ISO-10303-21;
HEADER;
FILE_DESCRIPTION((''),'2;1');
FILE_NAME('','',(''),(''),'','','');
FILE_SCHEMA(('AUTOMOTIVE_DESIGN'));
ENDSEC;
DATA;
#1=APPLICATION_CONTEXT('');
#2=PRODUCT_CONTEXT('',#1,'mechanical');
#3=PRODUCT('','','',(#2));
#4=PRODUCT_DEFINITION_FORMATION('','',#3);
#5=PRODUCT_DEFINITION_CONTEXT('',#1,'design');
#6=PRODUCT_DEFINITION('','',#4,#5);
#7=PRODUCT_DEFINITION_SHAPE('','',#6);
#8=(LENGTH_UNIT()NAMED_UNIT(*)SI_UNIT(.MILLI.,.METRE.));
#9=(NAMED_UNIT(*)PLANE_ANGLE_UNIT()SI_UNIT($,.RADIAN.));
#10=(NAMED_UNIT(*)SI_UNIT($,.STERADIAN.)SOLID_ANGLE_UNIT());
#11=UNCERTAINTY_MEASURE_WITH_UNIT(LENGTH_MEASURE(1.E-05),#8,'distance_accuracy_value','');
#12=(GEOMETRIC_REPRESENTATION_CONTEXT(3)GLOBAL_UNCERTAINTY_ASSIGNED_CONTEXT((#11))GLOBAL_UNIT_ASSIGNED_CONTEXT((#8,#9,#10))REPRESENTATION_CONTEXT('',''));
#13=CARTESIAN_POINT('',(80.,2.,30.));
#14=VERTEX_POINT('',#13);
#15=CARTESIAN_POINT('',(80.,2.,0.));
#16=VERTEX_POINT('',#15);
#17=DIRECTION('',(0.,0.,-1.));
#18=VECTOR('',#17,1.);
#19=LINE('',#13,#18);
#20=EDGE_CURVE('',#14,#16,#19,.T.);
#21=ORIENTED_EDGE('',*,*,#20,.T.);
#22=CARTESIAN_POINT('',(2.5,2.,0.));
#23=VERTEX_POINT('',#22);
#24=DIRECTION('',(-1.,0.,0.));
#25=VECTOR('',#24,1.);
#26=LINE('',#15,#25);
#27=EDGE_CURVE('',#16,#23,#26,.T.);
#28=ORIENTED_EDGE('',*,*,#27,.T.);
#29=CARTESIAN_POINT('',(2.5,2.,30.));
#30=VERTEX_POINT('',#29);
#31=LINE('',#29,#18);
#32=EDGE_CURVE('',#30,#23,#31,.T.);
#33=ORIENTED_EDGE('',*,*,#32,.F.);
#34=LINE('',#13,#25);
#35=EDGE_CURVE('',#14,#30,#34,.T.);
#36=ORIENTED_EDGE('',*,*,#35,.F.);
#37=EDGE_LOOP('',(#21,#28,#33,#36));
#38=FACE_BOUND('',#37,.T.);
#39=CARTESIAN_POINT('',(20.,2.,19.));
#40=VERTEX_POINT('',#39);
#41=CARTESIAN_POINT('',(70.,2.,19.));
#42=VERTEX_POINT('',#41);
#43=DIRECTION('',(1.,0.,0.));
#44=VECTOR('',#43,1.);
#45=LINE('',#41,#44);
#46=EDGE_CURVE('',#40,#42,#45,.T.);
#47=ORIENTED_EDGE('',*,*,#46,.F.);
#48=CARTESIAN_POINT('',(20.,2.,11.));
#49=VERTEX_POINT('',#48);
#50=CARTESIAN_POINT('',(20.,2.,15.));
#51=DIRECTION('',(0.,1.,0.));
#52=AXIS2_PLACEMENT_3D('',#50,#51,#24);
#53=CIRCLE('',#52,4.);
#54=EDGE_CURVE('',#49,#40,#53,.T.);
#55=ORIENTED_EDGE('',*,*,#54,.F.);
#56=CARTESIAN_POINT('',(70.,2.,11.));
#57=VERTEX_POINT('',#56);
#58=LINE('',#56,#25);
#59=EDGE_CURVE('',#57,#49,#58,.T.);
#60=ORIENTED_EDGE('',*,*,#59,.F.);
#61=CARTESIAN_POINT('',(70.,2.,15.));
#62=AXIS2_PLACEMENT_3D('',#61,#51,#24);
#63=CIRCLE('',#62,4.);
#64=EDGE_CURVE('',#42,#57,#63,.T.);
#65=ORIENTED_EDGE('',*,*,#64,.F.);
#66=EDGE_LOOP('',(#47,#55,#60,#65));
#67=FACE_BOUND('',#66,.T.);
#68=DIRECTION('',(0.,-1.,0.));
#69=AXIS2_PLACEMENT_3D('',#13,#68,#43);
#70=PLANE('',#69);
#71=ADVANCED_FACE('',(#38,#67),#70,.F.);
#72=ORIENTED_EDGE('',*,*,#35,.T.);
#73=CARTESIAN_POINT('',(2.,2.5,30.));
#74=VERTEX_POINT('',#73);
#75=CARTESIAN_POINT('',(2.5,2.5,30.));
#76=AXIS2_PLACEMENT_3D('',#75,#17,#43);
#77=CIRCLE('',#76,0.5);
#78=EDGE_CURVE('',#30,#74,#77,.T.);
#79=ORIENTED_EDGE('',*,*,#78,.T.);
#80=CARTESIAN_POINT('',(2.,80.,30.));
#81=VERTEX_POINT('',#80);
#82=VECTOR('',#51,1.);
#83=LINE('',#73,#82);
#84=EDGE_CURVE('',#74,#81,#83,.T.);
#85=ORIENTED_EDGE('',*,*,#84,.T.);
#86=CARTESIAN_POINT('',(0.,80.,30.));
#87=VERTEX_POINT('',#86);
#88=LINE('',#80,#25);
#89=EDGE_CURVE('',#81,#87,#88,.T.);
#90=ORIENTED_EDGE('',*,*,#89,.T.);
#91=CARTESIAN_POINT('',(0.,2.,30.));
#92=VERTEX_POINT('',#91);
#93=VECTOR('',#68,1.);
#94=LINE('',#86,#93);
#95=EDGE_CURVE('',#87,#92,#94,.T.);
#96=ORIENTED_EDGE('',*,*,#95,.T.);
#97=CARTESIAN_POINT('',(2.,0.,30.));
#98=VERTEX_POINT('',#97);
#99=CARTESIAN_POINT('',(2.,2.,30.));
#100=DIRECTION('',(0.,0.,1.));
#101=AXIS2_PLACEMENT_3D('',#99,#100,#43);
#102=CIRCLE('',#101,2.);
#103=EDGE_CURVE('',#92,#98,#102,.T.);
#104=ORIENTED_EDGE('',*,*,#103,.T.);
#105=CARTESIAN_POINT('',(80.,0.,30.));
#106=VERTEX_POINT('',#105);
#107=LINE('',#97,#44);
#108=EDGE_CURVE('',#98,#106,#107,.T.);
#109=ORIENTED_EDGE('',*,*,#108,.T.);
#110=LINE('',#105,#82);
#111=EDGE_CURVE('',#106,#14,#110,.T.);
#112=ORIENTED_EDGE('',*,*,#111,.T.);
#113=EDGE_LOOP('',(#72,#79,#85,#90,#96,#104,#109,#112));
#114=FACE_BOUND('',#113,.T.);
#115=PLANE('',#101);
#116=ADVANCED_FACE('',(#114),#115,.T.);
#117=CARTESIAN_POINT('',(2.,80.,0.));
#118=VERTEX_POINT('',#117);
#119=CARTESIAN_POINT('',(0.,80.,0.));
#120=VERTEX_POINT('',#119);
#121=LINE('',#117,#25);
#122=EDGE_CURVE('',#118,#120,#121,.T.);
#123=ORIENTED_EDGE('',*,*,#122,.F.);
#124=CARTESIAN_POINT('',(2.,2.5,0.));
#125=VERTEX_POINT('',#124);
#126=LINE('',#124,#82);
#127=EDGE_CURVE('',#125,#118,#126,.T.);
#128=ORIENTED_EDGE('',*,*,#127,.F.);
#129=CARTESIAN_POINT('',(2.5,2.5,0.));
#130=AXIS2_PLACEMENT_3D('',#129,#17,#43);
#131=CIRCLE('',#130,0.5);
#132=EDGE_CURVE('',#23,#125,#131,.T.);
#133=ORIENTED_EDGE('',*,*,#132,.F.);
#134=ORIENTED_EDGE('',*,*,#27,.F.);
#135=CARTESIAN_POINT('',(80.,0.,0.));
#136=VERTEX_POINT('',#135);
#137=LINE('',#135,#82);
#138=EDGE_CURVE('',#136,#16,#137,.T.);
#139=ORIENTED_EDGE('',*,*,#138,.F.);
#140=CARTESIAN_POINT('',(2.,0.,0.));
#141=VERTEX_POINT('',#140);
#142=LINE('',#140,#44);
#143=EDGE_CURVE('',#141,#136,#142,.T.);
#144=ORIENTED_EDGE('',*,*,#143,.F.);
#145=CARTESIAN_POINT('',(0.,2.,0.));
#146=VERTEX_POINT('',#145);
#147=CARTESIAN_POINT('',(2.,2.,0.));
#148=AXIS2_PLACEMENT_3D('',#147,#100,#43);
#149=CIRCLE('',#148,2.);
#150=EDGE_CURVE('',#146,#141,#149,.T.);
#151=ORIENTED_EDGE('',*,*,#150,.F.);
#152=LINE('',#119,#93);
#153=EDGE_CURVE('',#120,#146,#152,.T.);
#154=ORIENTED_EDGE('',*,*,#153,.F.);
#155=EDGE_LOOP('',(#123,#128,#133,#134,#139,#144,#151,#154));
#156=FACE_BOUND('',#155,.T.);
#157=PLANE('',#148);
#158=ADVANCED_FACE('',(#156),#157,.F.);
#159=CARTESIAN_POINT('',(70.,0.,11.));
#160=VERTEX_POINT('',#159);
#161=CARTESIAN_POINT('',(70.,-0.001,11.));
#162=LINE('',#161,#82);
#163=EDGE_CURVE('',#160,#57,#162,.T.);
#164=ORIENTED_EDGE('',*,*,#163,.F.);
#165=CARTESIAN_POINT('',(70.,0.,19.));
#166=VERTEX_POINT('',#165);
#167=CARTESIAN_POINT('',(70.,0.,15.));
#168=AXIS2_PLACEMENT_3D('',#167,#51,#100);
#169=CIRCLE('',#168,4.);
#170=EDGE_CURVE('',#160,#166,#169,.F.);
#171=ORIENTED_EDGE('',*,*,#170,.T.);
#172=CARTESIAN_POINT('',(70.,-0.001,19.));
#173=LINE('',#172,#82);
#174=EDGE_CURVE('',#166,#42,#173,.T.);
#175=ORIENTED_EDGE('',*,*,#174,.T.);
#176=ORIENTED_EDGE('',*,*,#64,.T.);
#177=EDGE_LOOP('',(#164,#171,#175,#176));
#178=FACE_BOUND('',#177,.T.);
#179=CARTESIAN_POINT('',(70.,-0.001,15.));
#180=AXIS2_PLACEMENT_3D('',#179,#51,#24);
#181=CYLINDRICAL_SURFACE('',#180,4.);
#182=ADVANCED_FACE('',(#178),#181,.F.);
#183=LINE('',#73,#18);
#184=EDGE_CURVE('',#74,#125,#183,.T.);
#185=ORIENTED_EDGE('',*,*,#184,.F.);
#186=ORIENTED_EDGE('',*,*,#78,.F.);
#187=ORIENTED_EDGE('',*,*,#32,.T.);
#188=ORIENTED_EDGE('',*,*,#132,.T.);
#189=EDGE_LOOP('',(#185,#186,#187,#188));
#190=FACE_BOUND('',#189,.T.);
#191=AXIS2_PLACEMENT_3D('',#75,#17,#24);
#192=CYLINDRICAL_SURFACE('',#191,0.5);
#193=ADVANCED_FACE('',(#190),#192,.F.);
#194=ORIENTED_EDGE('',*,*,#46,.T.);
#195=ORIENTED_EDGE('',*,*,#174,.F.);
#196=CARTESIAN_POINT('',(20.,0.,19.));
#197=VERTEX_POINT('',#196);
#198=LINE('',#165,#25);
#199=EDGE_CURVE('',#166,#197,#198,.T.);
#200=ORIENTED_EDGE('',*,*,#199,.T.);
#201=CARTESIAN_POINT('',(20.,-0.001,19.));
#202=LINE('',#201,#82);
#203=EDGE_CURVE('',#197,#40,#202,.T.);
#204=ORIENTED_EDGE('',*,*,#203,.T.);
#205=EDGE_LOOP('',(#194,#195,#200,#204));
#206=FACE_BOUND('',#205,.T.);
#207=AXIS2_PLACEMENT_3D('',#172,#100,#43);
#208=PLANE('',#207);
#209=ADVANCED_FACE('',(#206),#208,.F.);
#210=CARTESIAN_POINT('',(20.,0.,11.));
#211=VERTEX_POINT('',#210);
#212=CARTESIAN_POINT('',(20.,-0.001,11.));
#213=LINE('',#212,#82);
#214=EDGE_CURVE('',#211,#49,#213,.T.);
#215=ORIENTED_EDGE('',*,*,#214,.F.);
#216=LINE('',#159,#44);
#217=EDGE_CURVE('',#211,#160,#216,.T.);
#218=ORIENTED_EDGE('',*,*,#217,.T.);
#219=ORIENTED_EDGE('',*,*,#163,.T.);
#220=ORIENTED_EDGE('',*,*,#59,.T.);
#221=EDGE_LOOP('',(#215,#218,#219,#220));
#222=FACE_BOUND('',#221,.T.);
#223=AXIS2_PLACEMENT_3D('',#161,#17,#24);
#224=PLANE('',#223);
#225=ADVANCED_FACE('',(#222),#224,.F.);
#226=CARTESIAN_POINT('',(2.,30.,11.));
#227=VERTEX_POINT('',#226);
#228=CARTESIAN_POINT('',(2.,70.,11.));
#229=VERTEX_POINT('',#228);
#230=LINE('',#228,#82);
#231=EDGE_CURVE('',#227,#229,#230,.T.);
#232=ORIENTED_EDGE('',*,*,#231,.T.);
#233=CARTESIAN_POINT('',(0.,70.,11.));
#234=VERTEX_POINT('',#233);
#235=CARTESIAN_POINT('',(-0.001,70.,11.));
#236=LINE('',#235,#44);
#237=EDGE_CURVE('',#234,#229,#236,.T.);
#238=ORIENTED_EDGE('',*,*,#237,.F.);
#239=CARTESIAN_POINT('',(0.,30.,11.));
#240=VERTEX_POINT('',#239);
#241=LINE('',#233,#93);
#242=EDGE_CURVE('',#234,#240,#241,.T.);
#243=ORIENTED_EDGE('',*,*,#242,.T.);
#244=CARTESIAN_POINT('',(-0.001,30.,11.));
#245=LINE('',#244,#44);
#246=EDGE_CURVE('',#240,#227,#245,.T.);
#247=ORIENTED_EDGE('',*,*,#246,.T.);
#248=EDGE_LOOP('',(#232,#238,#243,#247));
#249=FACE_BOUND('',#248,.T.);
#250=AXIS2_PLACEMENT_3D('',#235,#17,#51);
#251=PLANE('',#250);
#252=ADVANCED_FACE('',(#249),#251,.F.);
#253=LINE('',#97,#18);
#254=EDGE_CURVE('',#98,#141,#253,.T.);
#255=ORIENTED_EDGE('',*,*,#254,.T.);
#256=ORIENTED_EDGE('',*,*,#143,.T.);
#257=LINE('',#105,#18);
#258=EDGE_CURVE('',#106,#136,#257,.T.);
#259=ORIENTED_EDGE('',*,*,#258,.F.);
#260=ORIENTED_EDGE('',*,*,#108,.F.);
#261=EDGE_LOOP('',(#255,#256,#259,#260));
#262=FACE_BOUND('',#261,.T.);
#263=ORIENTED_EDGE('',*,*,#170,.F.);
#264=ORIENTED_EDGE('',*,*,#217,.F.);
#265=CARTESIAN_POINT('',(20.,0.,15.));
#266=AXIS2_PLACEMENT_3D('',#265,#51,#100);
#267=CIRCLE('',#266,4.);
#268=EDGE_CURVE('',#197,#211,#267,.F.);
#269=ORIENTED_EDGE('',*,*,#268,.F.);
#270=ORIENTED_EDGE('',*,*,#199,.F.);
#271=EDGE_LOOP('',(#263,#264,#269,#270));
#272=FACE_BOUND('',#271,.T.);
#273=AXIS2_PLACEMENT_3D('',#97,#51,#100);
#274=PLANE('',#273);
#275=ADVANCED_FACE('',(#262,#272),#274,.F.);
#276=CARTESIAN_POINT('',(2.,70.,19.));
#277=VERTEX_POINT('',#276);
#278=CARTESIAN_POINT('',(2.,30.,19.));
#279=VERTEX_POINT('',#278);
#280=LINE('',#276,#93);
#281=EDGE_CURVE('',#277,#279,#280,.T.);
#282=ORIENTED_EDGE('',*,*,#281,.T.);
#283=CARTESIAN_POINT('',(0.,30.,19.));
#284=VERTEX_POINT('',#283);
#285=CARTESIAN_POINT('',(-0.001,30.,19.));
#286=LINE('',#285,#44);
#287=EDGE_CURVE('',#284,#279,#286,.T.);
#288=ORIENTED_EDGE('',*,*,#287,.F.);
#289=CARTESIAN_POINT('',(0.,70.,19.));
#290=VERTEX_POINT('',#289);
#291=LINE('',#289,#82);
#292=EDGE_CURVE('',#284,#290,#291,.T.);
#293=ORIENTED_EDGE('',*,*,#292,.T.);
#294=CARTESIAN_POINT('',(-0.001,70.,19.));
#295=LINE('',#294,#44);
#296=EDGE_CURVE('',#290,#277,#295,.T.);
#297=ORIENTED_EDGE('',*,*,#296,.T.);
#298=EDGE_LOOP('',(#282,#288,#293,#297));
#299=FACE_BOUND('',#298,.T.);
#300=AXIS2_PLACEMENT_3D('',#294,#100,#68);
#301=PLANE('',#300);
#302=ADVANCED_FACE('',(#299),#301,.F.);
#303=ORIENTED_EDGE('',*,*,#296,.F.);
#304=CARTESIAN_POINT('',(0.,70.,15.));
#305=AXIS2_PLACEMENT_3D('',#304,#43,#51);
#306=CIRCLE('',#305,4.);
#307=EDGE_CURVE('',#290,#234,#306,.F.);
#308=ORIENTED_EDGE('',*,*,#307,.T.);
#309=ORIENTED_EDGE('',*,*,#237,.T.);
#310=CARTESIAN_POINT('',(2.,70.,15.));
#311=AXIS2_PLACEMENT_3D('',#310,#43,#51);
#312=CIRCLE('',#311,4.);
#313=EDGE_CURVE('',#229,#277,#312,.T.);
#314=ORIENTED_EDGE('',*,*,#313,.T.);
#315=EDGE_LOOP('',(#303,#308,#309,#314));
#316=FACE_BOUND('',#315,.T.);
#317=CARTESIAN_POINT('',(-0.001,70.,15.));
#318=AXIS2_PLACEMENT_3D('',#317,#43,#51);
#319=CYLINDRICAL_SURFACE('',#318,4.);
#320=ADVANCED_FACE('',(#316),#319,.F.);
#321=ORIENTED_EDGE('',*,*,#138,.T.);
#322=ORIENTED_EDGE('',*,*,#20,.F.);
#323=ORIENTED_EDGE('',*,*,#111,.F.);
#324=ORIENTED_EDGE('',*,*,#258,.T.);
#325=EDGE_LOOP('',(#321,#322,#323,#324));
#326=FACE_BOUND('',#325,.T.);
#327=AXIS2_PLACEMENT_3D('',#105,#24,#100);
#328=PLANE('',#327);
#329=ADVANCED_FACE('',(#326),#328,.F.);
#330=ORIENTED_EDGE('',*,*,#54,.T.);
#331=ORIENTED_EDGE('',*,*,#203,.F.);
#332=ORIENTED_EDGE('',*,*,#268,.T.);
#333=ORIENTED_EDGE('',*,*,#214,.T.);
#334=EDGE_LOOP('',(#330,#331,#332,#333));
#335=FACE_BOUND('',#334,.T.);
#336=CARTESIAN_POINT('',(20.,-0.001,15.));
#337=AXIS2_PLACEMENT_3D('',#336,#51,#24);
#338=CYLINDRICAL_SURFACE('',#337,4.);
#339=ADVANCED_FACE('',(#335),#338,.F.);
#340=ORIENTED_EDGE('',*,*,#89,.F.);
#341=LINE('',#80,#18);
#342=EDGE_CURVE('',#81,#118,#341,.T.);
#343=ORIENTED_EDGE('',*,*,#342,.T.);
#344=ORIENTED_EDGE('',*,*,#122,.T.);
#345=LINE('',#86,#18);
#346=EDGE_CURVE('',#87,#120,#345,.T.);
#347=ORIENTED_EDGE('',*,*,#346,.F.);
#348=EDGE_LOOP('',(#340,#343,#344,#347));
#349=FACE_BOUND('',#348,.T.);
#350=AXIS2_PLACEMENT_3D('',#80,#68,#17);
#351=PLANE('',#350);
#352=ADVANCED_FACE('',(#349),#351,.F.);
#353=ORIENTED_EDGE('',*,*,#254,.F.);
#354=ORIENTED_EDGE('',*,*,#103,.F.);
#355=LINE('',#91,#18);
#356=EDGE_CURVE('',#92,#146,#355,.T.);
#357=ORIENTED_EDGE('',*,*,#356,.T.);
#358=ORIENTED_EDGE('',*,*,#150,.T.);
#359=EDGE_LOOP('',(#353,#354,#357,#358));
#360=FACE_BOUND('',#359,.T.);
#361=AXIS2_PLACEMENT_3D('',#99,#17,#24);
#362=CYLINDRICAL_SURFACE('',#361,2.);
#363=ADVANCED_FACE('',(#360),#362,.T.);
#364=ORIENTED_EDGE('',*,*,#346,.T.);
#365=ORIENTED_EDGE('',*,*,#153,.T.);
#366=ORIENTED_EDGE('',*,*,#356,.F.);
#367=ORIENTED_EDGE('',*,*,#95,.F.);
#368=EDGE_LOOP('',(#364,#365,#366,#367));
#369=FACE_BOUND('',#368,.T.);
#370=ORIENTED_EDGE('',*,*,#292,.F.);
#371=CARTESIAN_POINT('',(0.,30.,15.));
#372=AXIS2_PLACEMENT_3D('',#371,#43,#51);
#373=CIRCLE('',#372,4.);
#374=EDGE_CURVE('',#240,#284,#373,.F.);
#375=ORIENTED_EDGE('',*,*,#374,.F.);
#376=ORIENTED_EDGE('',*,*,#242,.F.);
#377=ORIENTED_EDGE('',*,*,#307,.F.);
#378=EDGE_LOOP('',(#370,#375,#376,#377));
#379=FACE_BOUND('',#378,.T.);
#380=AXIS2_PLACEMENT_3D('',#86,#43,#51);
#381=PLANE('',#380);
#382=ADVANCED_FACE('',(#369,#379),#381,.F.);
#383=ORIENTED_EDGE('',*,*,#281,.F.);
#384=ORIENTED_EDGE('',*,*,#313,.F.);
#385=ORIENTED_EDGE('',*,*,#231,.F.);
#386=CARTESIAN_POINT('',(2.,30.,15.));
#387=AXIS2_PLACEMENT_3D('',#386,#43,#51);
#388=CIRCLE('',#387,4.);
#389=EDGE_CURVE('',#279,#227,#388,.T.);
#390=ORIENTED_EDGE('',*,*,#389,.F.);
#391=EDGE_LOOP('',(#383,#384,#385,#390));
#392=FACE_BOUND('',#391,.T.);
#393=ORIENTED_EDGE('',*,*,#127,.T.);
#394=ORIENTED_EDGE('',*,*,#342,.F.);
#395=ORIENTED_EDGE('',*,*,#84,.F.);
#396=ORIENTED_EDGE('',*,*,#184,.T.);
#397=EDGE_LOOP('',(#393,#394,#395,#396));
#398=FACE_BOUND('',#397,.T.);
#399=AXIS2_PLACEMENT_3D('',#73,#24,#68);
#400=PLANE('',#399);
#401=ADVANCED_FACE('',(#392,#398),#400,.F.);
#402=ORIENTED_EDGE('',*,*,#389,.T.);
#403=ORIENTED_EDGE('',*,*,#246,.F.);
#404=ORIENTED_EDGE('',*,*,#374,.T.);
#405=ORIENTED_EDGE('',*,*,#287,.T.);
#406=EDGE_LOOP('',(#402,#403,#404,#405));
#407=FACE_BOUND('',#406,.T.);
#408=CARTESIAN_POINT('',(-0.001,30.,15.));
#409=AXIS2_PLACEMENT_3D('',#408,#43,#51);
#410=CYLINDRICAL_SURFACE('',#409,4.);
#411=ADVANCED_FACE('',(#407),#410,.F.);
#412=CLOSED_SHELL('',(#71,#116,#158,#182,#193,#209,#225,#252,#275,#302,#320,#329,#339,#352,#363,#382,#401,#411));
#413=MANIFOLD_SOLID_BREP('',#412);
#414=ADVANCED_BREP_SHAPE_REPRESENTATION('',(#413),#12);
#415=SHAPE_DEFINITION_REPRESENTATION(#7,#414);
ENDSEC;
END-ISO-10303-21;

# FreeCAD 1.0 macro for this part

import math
import FreeCAD as App
import Part
import Sketcher
Q = App.Units.Quantity

doc = App.newDocument("Part")
body = doc.addObject("PartDesign::Body", "Body")

sketch1 = body.newObject("Sketcher::SketchObject", "Sketch")
sketch1.AttachmentSupport = (doc.getObject("XY_Plane"), [""])
sketch1.MapMode = "FlatFace"
sketch1.addGeometry([
    Part.LineSegment(App.Vector(0, 80, 0), App.Vector(0, 2, 0)),
    Part.ArcOfCircle(Part.Circle(App.Vector(2, 2, 0), App.Vector(0, 0, 1), 2), math.radians(-180), math.radians(-90)),
    Part.LineSegment(App.Vector(2, 0, 0), App.Vector(80, 0, 0)),
    Part.LineSegment(App.Vector(80, 0, 0), App.Vector(80, 2, 0)),
    Part.LineSegment(App.Vector(80, 2, 0), App.Vector(2.5, 2, 0)),
    Part.ArcOfCircle(Part.Circle(App.Vector(2.5, 2.5, 0), App.Vector(0, 0, 1), 0.5), math.radians(180), math.radians(270)),
    Part.LineSegment(App.Vector(2, 2.5, 0), App.Vector(2, 80, 0)),
    Part.LineSegment(App.Vector(2, 80, 0), App.Vector(0, 80, 0)),
], False)
sketch1.addConstraint([
    Sketcher.Constraint("Tangent", 0, 2, 1, 1),
    Sketcher.Constraint("Tangent", 1, 2, 2, 1),
    Sketcher.Constraint("Coincident", 2, 2, 3, 1),
    Sketcher.Constraint("Coincident", 3, 2, 4, 1),
    Sketcher.Constraint("Tangent", 4, 2, 5, 2),
    Sketcher.Constraint("Tangent", 5, 1, 6, 1),
    Sketcher.Constraint("Coincident", 6, 2, 7, 1),
    Sketcher.Constraint("Coincident", 7, 2, 0, 1),
    Sketcher.Constraint("Vertical", 0),
    Sketcher.Constraint("Horizontal", 2),
    Sketcher.Constraint("Vertical", 3),
    Sketcher.Constraint("Horizontal", 4),
    Sketcher.Constraint("Vertical", 6),
    Sketcher.Constraint("Horizontal", 7),
    Sketcher.Constraint("PointOnObject", 0, 2, -2),
    Sketcher.Constraint("PointOnObject", 1, 2, -1),
    Sketcher.Constraint("Horizontal", 0, 2, 3, 2),
    Sketcher.Constraint("Vertical", 1, 2, 5, 1),
    Sketcher.Constraint("Equal", 2, 0),
    Sketcher.Constraint("Radius", 1, Q("2 mm")),
    Sketcher.Constraint("Radius", 5, Q("0.5 mm")),
    Sketcher.Constraint("DistanceX", 2, 1, 2, 2, Q("78 mm")),
])
pad1 = body.newObject("PartDesign::Pad", "Pad")
pad1.Profile = sketch1
pad1.Length = 30

sketch2 = body.newObject("Sketcher::SketchObject", "Sketch001")
sketch2.AttachmentSupport = (doc.getObject("XZ_Plane"), [""])
sketch2.MapMode = "FlatFace"
sketch2.AttachmentOffset = App.Placement(App.Vector(0, 0, -2), App.Rotation())
sketch2.addGeometry([
    Part.LineSegment(App.Vector(20, 19, 0), App.Vector(70, 19, 0)),
    Part.ArcOfCircle(Part.Circle(App.Vector(70, 15, 0), App.Vector(0, 0, 1), 4), math.radians(-90), math.radians(90)),
    Part.LineSegment(App.Vector(70, 11, 0), App.Vector(20, 11, 0)),
    Part.ArcOfCircle(Part.Circle(App.Vector(20, 15, 0), App.Vector(0, 0, 1), 4), math.radians(90), math.radians(270)),
], False)
sketch2.addConstraint([
    Sketcher.Constraint("Tangent", 0, 2, 1, 2),
    Sketcher.Constraint("Tangent", 1, 1, 2, 1),
    Sketcher.Constraint("Tangent", 2, 2, 3, 2),
    Sketcher.Constraint("Tangent", 3, 1, 0, 1),
    Sketcher.Constraint("Horizontal", 0),
    Sketcher.Constraint("Horizontal", 2),
    Sketcher.Constraint("Radius", 1, Q("4 mm")),
    Sketcher.Constraint("DistanceX", 0, 1, 0, 2, Q("50 mm")),
    Sketcher.Constraint("DistanceX", -1, 1, 1, 3, Q("70 mm")),
    Sketcher.Constraint("DistanceY", -1, 1, 1, 3, Q("15 mm")),
])
pocket1 = body.newObject("PartDesign::Pocket", "Pocket")
pocket1.Profile = sketch2
pocket1.Type = "UpToFirst"
pocket1.Reversed = True

sketch3 = body.newObject("Sketcher::SketchObject", "Sketch002")
sketch3.AttachmentSupport = (doc.getObject("YZ_Plane"), [""])
sketch3.MapMode = "FlatFace"
sketch3.AttachmentOffset = App.Placement(App.Vector(0, 0, 2), App.Rotation())
sketch3.addGeometry([
    Part.LineSegment(App.Vector(30, 11, 0), App.Vector(70, 11, 0)),
    Part.ArcOfCircle(Part.Circle(App.Vector(70, 15, 0), App.Vector(0, 0, 1), 4), math.radians(-90), math.radians(90)),
    Part.LineSegment(App.Vector(70, 19, 0), App.Vector(30, 19, 0)),
    Part.ArcOfCircle(Part.Circle(App.Vector(30, 15, 0), App.Vector(0, 0, 1), 4), math.radians(90), math.radians(270)),
], False)
sketch3.addConstraint([
    Sketcher.Constraint("Tangent", 0, 2, 1, 1),
    Sketcher.Constraint("Tangent", 1, 2, 2, 1),
    Sketcher.Constraint("Tangent", 2, 2, 3, 1),
    Sketcher.Constraint("Tangent", 3, 2, 0, 1),
    Sketcher.Constraint("Horizontal", 0),
    Sketcher.Constraint("Horizontal", 2),
    Sketcher.Constraint("Radius", 1, Q("4 mm")),
    Sketcher.Constraint("DistanceX", 0, 1, 0, 2, Q("40 mm")),
    Sketcher.Constraint("DistanceX", -1, 1, 1, 3, Q("70 mm")),
    Sketcher.Constraint("DistanceY", -1, 1, 1, 3, Q("15 mm")),
])
pocket2 = body.newObject("PartDesign::Pocket", "Pocket001")
pocket2.Profile = sketch3
pocket2.Type = "UpToFirst"

doc.recompute()
